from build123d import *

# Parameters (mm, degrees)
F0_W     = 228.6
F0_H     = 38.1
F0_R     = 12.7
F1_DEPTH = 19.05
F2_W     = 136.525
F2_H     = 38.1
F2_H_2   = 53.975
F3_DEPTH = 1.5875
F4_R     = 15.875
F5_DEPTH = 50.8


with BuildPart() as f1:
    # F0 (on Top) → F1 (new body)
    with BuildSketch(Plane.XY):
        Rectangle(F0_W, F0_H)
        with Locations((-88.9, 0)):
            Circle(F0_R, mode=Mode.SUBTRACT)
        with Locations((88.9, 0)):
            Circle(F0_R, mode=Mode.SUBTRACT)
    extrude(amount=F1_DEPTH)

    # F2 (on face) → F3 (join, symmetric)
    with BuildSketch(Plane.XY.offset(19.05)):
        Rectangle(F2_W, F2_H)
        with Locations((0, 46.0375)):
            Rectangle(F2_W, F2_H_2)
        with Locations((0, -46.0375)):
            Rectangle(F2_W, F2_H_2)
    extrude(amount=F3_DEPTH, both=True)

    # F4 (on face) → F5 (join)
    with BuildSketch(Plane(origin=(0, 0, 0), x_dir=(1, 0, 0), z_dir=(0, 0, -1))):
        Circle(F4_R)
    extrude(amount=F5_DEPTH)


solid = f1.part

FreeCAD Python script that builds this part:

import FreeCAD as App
import Part
import Sketcher

V = App.Vector
Q = App.Units.Quantity

doc = App.newDocument("Part")
body = doc.addObject("PartDesign::Body", "Body")

# Sketch on XY plane
sketch1 = body.newObject("Sketcher::SketchObject", "Sketch")
sketch1.AttachmentSupport = (doc.getObject("XY_Plane"), [""])
sketch1.MapMode = "FlatFace"
sketch1.addGeometry([
    Part.LineSegment(V(-114, 19, 0), V(-114, -19, 0)),  # 0
    Part.LineSegment(V(-114, -19, 0), V(114, -19, 0)),  # 1
    Part.LineSegment(V(114, -19, 0), V(114, 19, 0)),  # 2
    Part.LineSegment(V(114, 19, 0), V(-114, 19, 0)),  # 3
    Part.Circle(V(-89, 0, 0), V(0, 0, 1), 13),  # 4
    Part.Circle(V(89, 0, 0), V(0, 0, 1), 13),  # 5
], False)
sketch1.addConstraint([
    Sketcher.Constraint("Coincident", 0, 2, 1, 1),
    Sketcher.Constraint("Coincident", 1, 2, 2, 1),
    Sketcher.Constraint("Coincident", 2, 2, 3, 1),
    Sketcher.Constraint("Coincident", 3, 2, 0, 1),
    Sketcher.Constraint("Vertical", 0),
    Sketcher.Constraint("Horizontal", 1),
    Sketcher.Constraint("Vertical", 2),
    Sketcher.Constraint("Horizontal", 3),
    Sketcher.Constraint("Equal", 4, 5),
    Sketcher.Constraint("Symmetric", 4, 3, 5, 3, -1, 1),
    Sketcher.Constraint("Symmetric", 0, 2, 2, 2, -1, 1),
    Sketcher.Constraint("PointOnObject", 4, 3, -1),
    Sketcher.Constraint("Diameter", 4, Q("1 in")),
    Sketcher.Constraint("DistanceX", 1, 1, 1, 2, Q("9 in")),
    Sketcher.Constraint("DistanceY", 0, 2, 0, 1, Q("1.5 in")),
    Sketcher.Constraint("DistanceX", 4, 3, 5, 3, Q("7 in")),
])
pad1 = body.newObject("PartDesign::Pad", "Pad")
pad1.Profile = sketch1
pad1.Length = Q("0.75 in")

# Sketch on XY plane
sketch2 = body.newObject("Sketcher::SketchObject", "Sketch001")
sketch2.AttachmentSupport = (doc.getObject("XY_Plane"), [""])
sketch2.MapMode = "FlatFace"
sketch2.AttachmentOffset = App.Placement(V(0, 0, 0.75 * 25.4), App.Rotation())
sketch2.addGeometry([
    Part.LineSegment(V(68, 73, 0), V(-68, 73, 0)),
    Part.LineSegment(V(-68, 73, 0), V(-68, -73, 0)),
    Part.LineSegment(V(-68, -73, 0), V(68, -73, 0)),
    Part.LineSegment(V(68, -73, 0), V(68, 73, 0)),
], False)
sketch2.addConstraint([
    Sketcher.Constraint("Coincident", 0, 2, 1, 1),
    Sketcher.Constraint("Coincident", 1, 2, 2, 1),
    Sketcher.Constraint("Coincident", 2, 2, 3, 1),
    Sketcher.Constraint("Coincident", 3, 2, 0, 1),
    Sketcher.Constraint("Horizontal", 0),
    Sketcher.Constraint("Vertical", 1),
    Sketcher.Constraint("Horizontal", 2),
    Sketcher.Constraint("Vertical", 3),
    Sketcher.Constraint("Symmetric", 0, 2, 2, 2, -1, 1),
    Sketcher.Constraint("DistanceY", 1, 2, 1, 1, Q("5.75 in")),
    Sketcher.Constraint("DistanceX", 0, 2, 0, 1, Q("5.375 in")),
])
pad2 = body.newObject("PartDesign::Pad", "Pad001")
pad2.Profile = sketch2
pad2.Length = Q("0.125 in")
pad2.Midplane = True

# Sketch on XY plane
sketch3 = body.newObject("Sketcher::SketchObject", "Sketch002")
sketch3.AttachmentSupport = (doc.getObject("XY_Plane"), [""])
sketch3.MapMode = "FlatFace"
sketch3.addGeometry(Part.Circle(V(0, 0, 0), V(0, 0, 1), 16), False)
sketch3.addConstraint([
    Sketcher.Constraint("Coincident", 0, 3, -1, 1),
    Sketcher.Constraint("Diameter", 0, Q("1.25 in")),
])
pad3 = body.newObject("PartDesign::Pad", "Pad002")
pad3.Profile = sketch3
pad3.Length = Q("2 in")
pad3.Reversed = True

doc.recompute()
